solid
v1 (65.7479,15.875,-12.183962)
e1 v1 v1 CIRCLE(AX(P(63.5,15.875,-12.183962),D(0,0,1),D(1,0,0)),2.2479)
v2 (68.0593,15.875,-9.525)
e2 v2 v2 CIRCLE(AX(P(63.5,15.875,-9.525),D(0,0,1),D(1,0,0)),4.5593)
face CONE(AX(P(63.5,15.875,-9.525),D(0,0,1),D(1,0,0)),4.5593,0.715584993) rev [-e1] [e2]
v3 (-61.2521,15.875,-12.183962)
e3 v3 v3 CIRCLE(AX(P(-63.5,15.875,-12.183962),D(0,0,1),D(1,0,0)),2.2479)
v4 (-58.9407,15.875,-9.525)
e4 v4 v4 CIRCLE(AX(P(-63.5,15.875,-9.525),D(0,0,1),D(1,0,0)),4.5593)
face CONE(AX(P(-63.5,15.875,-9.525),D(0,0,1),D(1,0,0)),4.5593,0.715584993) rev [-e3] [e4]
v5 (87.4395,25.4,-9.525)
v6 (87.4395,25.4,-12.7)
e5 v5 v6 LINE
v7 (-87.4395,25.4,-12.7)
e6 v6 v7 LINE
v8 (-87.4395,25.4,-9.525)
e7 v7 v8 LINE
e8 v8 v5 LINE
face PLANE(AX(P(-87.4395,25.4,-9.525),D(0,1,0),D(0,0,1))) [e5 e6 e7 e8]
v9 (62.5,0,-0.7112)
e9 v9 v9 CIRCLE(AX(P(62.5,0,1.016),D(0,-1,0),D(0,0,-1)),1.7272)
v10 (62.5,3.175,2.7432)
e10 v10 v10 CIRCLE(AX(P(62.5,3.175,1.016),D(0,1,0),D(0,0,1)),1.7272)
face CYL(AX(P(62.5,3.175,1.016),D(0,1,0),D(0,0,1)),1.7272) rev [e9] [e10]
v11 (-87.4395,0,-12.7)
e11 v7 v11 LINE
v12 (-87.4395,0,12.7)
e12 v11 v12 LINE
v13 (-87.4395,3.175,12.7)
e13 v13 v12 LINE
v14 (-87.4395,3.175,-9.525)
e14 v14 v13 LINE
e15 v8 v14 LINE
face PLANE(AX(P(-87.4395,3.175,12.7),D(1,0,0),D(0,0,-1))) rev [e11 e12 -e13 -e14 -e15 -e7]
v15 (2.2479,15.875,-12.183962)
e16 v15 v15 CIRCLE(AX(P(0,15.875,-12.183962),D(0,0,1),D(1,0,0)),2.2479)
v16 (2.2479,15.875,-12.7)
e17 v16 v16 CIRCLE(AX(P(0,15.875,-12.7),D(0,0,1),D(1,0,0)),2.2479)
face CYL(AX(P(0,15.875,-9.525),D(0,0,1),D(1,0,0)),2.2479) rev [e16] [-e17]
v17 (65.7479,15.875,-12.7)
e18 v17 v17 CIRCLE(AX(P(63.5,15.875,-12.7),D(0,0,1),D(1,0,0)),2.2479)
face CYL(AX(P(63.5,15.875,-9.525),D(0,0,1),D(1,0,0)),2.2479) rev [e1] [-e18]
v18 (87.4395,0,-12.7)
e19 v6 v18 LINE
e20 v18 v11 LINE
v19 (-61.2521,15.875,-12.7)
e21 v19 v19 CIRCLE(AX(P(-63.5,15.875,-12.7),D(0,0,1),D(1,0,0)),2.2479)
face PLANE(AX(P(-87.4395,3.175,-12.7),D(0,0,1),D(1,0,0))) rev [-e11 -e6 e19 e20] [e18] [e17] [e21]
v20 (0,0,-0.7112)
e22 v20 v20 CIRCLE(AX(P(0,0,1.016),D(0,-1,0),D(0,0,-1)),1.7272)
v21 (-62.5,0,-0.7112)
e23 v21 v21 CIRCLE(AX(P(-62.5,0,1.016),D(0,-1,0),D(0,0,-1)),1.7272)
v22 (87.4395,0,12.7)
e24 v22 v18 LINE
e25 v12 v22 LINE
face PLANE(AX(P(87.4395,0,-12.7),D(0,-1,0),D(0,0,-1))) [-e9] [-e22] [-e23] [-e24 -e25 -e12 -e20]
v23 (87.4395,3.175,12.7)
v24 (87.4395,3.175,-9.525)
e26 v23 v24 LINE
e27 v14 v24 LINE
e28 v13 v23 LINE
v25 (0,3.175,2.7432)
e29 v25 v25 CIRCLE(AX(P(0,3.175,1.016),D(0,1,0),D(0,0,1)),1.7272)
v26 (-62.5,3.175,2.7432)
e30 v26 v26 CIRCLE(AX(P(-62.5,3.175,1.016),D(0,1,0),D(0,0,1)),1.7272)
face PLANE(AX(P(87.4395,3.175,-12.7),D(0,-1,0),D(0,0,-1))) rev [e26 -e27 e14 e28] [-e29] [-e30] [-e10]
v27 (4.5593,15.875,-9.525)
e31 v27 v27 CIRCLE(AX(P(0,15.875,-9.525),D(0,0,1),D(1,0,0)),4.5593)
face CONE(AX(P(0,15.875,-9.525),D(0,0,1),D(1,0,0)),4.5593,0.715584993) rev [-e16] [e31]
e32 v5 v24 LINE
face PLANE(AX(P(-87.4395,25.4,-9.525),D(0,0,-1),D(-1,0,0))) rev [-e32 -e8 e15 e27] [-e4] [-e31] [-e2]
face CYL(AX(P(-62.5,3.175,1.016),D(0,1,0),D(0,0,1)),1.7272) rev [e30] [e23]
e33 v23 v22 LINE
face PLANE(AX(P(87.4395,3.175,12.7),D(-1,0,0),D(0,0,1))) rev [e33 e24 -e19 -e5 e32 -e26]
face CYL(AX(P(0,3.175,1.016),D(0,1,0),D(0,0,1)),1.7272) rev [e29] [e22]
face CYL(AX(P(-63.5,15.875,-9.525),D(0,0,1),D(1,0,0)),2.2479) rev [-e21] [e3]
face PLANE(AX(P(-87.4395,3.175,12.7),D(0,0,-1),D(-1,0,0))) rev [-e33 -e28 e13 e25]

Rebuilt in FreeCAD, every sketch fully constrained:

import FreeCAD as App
import Part
import Sketcher
from FreeCAD import Vector
Q = App.Units.Quantity


def add_polygon(sketch, points):
    """Adds a closed chain of lines whose ends are joined by coincident constraints."""
    first, n = sketch.GeometryCount, len(points)
    for a, b in zip(points, points[1:] + points[:1]):
        sketch.addGeometry(Part.LineSegment(App.Vector(*a, 0), App.Vector(*b, 0)), False)
    for i in range(n):
        sketch.addConstraint(Sketcher.Constraint("Coincident", first + i, 2, first + (i + 1) % n, 1))

doc = App.newDocument("Part")
body = doc.addObject("PartDesign::Body", "Body")

sketch1 = body.newObject("Sketcher::SketchObject", "Sketch")
sketch1.AttachmentSupport = (doc.getObject("XZ_Plane"), [""])
sketch1.MapMode = "FlatFace"
add_polygon(sketch1, [(-87, -13), (-87, 13), (87, 13), (87, -13)])
sketch1.addConstraint([
    Sketcher.Constraint("Vertical", 0),
    Sketcher.Constraint("Horizontal", 1),
    Sketcher.Constraint("Vertical", 2),
    Sketcher.Constraint("Horizontal", 3),
    Sketcher.Constraint("Symmetric", 0, 2, 2, 2, -1, 1),
    Sketcher.Constraint("DistanceY", 0, 1, 0, 2, Q("1 in")),
    Sketcher.Constraint("DistanceX", 1, 1, 1, 2, Q("6.885 in")),
])
pad1 = body.newObject("PartDesign::Pad", "Pad")
pad1.Profile = sketch1
pad1.Length = Q("0.125 in")
pad1.Reversed = True

sketch2 = body.newObject("Sketcher::SketchObject", "Sketch001")
sketch2.AttachmentSupport = (doc.getObject("XZ_Plane"), [""])
sketch2.MapMode = "FlatFace"
sketch2.AttachmentOffset = App.Placement(Vector(0, 0, -0.125 * 25.4), App.Rotation())
add_polygon(sketch2, [(-87.4, -12.7), (-87.4, -9.5), (87.4, -9.5), (87.4, -12.7)])
sketch2.addConstraint([
    Sketcher.Constraint("Vertical", 0),
    Sketcher.Constraint("Horizontal", 1),
    Sketcher.Constraint("Vertical", 2),
    Sketcher.Constraint("Horizontal", 3),
    Sketcher.Constraint("DistanceY", 2, 2, -1, 1, Q("0.5 in")),
    Sketcher.Constraint("DistanceX", 1, 1, 1, 2, Q("6.885 in")),
    Sketcher.Constraint("DistanceY", 0, 1, 0, 2, Q("0.125 in")),
    Sketcher.Constraint("DistanceX", 0, 2, -1, 1, Q("3.4425 in")),
])
pad2 = body.newObject("PartDesign::Pad", "Pad001")
pad2.Profile = sketch2
pad2.Length = Q("0.875 in")
pad2.Reversed = True

sketch3 = body.newObject("Sketcher::SketchObject", "Sketch002")
sketch3.AttachmentSupport = (doc.getObject("XZ_Plane"), [""])
sketch3.MapMode = "FlatFace"
sketch3.AttachmentOffset = App.Placement(Vector(0, 0, -0.125 * 25.4), App.Rotation())
sketch3.addGeometry([
    Part.Circle(Vector(-62.5, 1, 0), Vector(0, 0, 1), 1.7),
    Part.Circle(Vector(0, 1, 0), Vector(0, 0, 1), 1.7),
    Part.Circle(Vector(62.5, 1, 0), Vector(0, 0, 1), 1.7),
], False)
sketch3.addConstraint([
    Sketcher.Constraint("Equal", 0, 1),
    Sketcher.Constraint("Equal", 1, 2),
    Sketcher.Constraint("Symmetric", 0, 3, 2, 3, -2),
    Sketcher.Constraint("PointOnObject", 1, 3, -2),
    Sketcher.Constraint("Horizontal", 0, 3, 1, 3),
    Sketcher.Constraint("Diameter", 0, Q("0.136 in")),
    Sketcher.Constraint("DistanceY", -1, 1, 0, 3, Q("0.04 in")),
    Sketcher.Constraint("DistanceX", 0, 3, -1, 1, 62.5),
])
doc.recompute()
hole = body.newObject("PartDesign::Hole", "Hole")
hole.Profile = sketch3
hole.ThreadType = "None"
hole.Diameter = Q("0.136 in")
hole.DepthType = "Dimension"
hole.Depth = Q("0.42 in")
hole.DrillPoint = "Angled"
hole.DrillPointAngle = 118
hole.Reversed = True

sketch4 = body.newObject("Sketcher::SketchObject", "Sketch003")
sketch4.AttachmentSupport = (doc.getObject("YZ_Plane"), [""])
sketch4.MapMode = "FlatFace"
sketch4.AttachmentOffset = App.Placement(Vector(0, 0, -2.5 * 25.4), App.Rotation())
add_polygon(sketch4, [(15.9, -12.7), (15.9, -9.5), (11.3, -9.5), (13.6, -12.2), (13.6, -12.7)])
sketch4.addGeometry(Part.LineSegment(Vector(15.9, -9.5, 0), Vector(15.9, -12.7, 0)), True)
sketch4.addConstraint([
    Sketcher.Constraint("Vertical", 0),
    Sketcher.Constraint("Horizontal", 1),
    Sketcher.Constraint("Vertical", 3),
    Sketcher.Constraint("Horizontal", 4),
    Sketcher.Constraint("Vertical", 5),
    Sketcher.Constraint("Coincident", 5, 1, 0, 2),
    Sketcher.Constraint("Horizontal", 3, 2, 5, 2),
    Sketcher.Constraint("Angle", 2, Q("-49 deg")),
    Sketcher.Constraint("DistanceY", 3, 2, -1, 1, Q("0.5 in")),
    Sketcher.Constraint("DistanceY", 0, 1, 0, 2, Q("0.125 in")),
    Sketcher.Constraint("DistanceX", 1, 2, 1, 1, Q("0.1795 in")),
    Sketcher.Constraint("DistanceX", 4, 1, 4, 2, Q("0.0885 in")),
    Sketcher.Constraint("DistanceX", -1, 1, 0, 2, Q("0.625 in")),
])
groove = body.newObject("PartDesign::Groove", "Groove")
groove.Profile = sketch4
groove.ReferenceAxis = (sketch4, ["Axis0"])
groove.Angle = 360
doc.recompute()

linearpattern = body.newObject("PartDesign::LinearPattern", "LinearPattern")
linearpattern.Originals = [groove]
linearpattern.Direction = (doc.getObject("X_Axis"), [""])
linearpattern.Mode = "offset"
linearpattern.Offset = Q("2.5 in")
linearpattern.Occurrences = 2
body.Tip = linearpattern
doc.recompute()

linearpattern2 = body.newObject("PartDesign::LinearPattern", "LinearPattern001")
linearpattern2.Originals = [groove]
linearpattern2.Direction = (doc.getObject("X_Axis"), [""])
linearpattern2.Mode = "offset"
linearpattern2.Offset = Q("5 in")
linearpattern2.Occurrences = 2
body.Tip = linearpattern2

doc.recompute()
